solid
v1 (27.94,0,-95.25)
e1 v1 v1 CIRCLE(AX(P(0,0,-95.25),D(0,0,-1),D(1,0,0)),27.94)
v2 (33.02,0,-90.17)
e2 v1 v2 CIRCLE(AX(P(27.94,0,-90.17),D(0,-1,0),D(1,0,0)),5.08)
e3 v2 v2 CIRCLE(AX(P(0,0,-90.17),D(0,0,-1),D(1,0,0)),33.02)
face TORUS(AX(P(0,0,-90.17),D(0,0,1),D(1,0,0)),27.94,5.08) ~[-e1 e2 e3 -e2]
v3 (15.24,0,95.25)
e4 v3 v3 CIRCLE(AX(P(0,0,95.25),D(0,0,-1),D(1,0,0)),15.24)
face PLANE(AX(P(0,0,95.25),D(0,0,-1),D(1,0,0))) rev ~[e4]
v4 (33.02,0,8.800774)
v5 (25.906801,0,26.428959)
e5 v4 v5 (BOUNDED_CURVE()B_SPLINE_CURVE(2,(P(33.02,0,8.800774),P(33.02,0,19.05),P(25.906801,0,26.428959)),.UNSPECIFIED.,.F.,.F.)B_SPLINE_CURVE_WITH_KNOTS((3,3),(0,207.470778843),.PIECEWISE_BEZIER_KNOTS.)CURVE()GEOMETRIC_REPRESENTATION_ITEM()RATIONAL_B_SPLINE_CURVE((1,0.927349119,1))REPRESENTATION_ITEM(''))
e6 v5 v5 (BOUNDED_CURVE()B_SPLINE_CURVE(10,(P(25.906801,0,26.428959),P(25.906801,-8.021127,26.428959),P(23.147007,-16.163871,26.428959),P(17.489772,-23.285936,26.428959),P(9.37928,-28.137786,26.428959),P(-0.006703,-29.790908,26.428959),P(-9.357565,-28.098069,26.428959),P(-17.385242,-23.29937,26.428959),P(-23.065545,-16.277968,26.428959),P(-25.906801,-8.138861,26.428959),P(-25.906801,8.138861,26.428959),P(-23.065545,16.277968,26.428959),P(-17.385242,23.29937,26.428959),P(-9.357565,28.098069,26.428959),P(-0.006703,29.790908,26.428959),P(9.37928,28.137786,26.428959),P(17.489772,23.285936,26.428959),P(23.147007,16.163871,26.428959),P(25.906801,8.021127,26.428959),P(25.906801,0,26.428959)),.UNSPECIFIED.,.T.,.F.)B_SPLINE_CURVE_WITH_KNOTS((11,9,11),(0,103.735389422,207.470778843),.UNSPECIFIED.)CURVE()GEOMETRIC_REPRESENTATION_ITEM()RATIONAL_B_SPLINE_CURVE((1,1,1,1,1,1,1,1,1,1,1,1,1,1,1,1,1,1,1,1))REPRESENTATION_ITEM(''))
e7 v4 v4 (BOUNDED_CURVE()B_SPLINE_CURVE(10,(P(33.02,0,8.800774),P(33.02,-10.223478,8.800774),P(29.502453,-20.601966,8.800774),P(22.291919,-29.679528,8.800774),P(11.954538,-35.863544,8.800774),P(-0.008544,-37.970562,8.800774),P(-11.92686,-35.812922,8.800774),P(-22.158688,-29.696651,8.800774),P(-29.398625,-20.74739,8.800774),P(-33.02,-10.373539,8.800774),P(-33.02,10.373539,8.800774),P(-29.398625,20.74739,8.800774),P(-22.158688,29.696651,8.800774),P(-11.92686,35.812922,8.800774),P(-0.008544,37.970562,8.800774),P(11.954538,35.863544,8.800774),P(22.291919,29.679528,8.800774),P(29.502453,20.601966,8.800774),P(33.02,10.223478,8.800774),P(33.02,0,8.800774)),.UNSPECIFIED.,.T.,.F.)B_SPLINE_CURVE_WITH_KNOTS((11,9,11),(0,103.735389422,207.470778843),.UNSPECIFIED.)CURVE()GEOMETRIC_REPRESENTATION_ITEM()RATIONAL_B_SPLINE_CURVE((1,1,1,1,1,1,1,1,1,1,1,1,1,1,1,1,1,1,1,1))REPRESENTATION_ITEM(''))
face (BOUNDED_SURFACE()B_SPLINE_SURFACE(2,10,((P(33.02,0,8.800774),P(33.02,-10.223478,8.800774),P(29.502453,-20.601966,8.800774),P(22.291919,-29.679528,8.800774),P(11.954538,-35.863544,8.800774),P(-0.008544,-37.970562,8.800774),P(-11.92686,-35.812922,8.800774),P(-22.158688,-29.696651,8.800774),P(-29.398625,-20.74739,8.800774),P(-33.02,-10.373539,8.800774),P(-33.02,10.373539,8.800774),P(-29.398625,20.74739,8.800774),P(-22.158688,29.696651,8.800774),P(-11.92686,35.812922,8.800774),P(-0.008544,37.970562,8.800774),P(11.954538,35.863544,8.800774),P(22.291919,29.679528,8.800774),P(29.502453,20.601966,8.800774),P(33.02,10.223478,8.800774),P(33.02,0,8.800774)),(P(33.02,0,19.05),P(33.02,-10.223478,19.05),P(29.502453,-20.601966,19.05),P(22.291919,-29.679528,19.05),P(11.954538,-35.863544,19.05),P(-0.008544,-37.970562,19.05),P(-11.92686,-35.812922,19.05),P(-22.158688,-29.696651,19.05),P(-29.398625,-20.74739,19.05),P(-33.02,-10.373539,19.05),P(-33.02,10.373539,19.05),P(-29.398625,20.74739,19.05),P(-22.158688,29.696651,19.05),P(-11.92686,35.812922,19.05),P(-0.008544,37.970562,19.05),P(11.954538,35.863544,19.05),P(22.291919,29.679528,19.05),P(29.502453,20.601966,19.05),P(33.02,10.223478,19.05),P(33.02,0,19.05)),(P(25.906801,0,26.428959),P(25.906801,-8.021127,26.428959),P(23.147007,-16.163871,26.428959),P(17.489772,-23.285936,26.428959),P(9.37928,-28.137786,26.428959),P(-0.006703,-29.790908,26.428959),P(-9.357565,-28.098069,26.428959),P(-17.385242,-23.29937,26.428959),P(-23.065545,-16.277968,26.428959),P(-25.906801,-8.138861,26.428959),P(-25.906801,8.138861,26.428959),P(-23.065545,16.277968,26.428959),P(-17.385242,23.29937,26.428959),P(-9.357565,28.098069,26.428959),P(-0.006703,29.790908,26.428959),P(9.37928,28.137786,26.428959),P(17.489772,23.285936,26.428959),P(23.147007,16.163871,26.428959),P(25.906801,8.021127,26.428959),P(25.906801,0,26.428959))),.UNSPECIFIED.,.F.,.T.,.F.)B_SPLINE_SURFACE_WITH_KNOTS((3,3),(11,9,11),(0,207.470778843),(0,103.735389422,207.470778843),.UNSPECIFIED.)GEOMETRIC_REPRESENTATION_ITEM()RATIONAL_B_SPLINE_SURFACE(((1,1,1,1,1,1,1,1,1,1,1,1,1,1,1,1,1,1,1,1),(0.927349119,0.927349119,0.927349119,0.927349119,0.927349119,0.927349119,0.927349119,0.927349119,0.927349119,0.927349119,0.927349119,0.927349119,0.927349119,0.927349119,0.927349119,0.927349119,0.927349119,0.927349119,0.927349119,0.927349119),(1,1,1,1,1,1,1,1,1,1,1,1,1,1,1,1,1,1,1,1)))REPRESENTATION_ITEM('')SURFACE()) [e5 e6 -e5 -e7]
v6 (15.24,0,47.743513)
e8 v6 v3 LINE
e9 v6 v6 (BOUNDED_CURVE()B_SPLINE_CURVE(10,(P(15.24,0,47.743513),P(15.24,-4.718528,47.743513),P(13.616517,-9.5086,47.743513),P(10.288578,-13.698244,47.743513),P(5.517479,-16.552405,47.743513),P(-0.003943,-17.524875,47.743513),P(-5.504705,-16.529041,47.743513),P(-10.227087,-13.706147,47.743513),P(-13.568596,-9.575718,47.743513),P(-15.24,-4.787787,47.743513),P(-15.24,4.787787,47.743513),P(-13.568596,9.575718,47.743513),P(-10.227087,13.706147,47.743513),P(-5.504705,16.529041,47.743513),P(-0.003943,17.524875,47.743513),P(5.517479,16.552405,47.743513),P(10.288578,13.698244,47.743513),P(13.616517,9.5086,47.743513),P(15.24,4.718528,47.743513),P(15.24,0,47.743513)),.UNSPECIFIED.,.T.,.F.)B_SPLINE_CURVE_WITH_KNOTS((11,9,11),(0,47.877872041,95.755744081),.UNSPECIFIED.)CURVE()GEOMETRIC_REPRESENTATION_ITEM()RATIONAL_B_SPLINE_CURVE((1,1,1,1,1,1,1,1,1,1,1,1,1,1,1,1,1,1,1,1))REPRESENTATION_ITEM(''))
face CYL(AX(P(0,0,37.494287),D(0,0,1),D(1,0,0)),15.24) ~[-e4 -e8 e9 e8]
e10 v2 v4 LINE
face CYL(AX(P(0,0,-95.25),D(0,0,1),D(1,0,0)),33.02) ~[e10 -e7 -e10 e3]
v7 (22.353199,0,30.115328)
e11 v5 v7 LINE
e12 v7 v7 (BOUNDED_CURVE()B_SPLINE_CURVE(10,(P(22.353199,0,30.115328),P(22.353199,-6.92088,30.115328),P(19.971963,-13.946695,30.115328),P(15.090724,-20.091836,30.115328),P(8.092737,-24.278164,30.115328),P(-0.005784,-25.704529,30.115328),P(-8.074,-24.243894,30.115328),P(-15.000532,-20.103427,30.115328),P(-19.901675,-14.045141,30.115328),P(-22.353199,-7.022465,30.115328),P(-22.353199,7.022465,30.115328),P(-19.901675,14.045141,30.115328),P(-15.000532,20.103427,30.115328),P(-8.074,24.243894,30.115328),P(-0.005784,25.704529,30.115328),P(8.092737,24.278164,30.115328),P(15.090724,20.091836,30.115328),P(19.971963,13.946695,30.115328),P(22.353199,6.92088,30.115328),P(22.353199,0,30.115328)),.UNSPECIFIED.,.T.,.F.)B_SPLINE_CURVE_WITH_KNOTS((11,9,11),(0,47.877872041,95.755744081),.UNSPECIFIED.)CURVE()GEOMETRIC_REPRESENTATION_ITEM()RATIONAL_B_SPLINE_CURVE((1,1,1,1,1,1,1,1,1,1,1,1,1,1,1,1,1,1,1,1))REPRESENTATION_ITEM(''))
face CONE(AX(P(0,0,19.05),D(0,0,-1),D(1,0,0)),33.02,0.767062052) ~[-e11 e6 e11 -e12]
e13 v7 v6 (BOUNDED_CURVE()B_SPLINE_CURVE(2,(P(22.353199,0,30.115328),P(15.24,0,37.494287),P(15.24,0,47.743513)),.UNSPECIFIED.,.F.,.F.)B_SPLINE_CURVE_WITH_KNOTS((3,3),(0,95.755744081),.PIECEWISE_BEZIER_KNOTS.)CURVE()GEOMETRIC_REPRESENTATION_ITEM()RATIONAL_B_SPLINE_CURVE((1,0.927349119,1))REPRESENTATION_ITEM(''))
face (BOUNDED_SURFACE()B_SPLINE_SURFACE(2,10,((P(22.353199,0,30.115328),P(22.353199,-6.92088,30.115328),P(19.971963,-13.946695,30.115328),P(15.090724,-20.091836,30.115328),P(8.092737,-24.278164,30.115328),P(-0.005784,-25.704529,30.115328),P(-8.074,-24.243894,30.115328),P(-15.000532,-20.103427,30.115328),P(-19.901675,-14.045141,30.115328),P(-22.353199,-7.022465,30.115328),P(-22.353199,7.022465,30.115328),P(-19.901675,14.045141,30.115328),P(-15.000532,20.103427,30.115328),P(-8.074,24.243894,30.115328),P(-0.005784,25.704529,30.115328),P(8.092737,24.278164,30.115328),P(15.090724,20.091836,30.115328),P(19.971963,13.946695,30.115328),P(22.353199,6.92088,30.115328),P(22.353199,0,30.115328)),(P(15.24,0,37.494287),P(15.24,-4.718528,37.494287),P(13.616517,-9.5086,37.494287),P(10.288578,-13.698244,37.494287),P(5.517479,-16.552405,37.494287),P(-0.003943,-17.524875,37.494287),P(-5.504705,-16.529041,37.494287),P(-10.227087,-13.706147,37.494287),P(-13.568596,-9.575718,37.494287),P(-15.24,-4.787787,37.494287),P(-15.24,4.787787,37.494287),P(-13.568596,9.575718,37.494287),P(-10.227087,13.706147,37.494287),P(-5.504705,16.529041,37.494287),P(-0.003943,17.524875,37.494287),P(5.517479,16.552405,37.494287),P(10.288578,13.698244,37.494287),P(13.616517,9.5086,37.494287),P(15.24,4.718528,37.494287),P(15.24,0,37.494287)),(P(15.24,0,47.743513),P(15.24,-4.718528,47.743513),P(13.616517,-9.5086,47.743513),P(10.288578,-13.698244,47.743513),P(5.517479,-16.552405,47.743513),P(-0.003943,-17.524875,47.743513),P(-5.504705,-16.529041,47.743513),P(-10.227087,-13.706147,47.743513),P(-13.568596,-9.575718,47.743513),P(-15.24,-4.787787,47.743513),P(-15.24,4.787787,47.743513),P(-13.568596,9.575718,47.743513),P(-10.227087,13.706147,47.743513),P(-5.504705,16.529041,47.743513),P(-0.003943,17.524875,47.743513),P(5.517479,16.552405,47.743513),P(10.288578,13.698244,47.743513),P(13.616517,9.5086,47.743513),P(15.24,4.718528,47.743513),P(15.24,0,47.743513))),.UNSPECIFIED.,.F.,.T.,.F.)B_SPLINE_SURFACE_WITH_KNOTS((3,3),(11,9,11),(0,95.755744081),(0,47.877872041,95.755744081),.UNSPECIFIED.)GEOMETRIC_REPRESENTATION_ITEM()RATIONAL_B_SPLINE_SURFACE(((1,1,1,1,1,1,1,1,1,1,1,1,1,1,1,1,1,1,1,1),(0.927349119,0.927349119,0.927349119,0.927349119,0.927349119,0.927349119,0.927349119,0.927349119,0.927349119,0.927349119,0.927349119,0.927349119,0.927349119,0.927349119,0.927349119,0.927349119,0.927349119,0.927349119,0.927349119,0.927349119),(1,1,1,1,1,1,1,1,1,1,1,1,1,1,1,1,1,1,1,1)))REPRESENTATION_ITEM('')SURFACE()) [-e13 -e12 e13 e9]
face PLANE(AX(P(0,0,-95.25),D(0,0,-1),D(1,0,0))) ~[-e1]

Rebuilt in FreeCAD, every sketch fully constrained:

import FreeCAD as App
import Part
import Sketcher
Q = App.Units.Quantity


def edges_at(feature, points):
    """Names of the edges that pass closest to the given points."""
    edges = feature.Shape.Edges
    near = lambda p: min(range(len(edges)), key=lambda i: edges[i].distToShape(Part.Vertex(*p))[0])
    return sorted({f"Edge{near(p) + 1}" for p in points})


def add_polygon(sketch, points):
    """Adds a closed chain of lines whose ends are joined by coincident constraints."""
    first, n = sketch.GeometryCount, len(points)
    for a, b in zip(points, points[1:] + points[:1]):
        sketch.addGeometry(Part.LineSegment(App.Vector(*a, 0), App.Vector(*b, 0)), False)
    for i in range(n):
        sketch.addConstraint(Sketcher.Constraint("Coincident", first + i, 2, first + (i + 1) % n, 1))

doc = App.newDocument("Part")
body = doc.addObject("PartDesign::Body", "Body")

sketch1 = doc.addObject("Sketcher::SketchObject", "Sketch")
body.addObject(sketch1)
sketch1.AttachmentSupport = (doc.XZ_Plane, [""])
sketch1.MapMode = "FlatFace"
add_polygon(sketch1, [(15, 95), (0, 95), (0, -95), (33, -95), (33, 19), (15, 37)])
sketch1.addConstraint([
    Sketcher.Constraint("Horizontal", 0),
    Sketcher.Constraint("Vertical", 1),
    Sketcher.Constraint("Horizontal", 2),
    Sketcher.Constraint("Vertical", 3),
    Sketcher.Constraint("Vertical", 5),
    Sketcher.Constraint("Symmetric", 0, 2, 1, 2, -1, 1),
    Sketcher.Constraint("DistanceX", 0, 2, 0, 1, Q("0.6 in")),
    Sketcher.Constraint("DistanceX", 2, 1, 2, 2, Q("1.3 in")),
    Sketcher.Constraint("DistanceY", 1, 2, 1, 1, Q("7.5 in")),
    Sketcher.Constraint("DistanceY", 3, 1, 3, 2, Q("4.5 in")),
    Sketcher.Constraint("DistanceY", 5, 1, 5, 2, Q("57.755713 mm")),
])
revolution = doc.addObject("PartDesign::Revolution", "Revolution")
body.addObject(revolution)
revolution.Profile = sketch1
revolution.ReferenceAxis = (sketch1, ["V_Axis"])
revolution.Angle = 360
doc.recompute()

fillet = doc.addObject("PartDesign::Fillet", "Fillet")
body.addObject(fillet)
fillet.Base = (revolution, edges_at(revolution, [(-33.02, 0, -95.25)]))
fillet.Radius = Q("0.2 in")
doc.recompute()

fillet2 = doc.addObject("PartDesign::Fillet", "Fillet001")
body.addObject(fillet2)
fillet2.Base = (fillet, edges_at(fillet, [(-33.02, 0, 19.05), (-15.24, 0, 37.494)]))
fillet2.Radius = Q("1 in")

doc.recompute()
